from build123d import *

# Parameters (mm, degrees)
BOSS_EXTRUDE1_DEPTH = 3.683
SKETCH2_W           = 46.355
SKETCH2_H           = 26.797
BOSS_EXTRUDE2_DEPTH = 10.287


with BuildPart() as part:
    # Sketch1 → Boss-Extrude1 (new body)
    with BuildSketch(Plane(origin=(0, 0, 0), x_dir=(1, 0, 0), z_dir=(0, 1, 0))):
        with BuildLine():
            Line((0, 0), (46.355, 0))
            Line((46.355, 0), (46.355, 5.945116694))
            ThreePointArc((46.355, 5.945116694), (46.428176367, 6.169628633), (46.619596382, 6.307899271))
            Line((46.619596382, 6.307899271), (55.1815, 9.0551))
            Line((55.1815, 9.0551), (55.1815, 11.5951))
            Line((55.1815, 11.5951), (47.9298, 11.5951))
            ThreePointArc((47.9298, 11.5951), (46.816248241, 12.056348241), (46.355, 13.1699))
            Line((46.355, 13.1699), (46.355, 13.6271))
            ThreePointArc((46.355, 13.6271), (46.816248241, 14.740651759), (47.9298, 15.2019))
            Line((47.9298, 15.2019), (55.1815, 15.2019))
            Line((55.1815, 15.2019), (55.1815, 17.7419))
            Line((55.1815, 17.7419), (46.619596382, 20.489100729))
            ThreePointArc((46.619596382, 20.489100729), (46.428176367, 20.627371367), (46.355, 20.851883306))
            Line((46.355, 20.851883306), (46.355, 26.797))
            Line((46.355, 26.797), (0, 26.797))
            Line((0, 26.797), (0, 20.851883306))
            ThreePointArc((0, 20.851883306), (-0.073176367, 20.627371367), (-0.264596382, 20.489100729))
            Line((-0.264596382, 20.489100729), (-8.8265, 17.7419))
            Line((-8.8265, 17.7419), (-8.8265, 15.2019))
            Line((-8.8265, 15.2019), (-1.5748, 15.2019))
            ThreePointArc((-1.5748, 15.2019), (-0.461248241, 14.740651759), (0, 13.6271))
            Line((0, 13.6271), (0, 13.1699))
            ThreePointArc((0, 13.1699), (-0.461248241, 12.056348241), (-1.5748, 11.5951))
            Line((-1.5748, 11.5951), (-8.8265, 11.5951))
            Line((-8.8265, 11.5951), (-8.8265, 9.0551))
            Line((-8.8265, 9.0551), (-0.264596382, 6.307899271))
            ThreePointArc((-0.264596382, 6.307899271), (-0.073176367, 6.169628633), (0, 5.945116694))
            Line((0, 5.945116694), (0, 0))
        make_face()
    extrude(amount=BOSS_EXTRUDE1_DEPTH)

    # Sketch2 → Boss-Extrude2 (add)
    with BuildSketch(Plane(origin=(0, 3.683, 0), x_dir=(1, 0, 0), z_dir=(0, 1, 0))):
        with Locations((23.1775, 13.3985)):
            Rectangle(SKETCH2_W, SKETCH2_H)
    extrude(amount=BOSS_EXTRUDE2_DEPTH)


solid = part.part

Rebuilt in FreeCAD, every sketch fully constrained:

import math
import FreeCAD as App
import Part
import Sketcher
from FreeCAD import Vector
Q = App.Units.Quantity


def add_polygon(sketch, points):
    """Adds a closed chain of lines whose ends are joined by coincident constraints."""
    first, n = sketch.GeometryCount, len(points)
    for a, b in zip(points, points[1:] + points[:1]):
        sketch.addGeometry(Part.LineSegment(App.Vector(*a, 0), App.Vector(*b, 0)), False)
    for i in range(n):
        sketch.addConstraint(Sketcher.Constraint("Coincident", first + i, 2, first + (i + 1) % n, 1))

doc = App.newDocument("Part")
body = doc.addObject("PartDesign::Body", "Body")

# Sketch on XZ plane
sketch1 = doc.addObject("Sketcher::SketchObject", "Sketch")
body.addObject(sketch1)
sketch1.AttachmentSupport = (doc.XZ_Plane, [""])
sketch1.MapMode = "FlatFace"
sketch1.addGeometry([
    Part.LineSegment(Vector(0, 0, 0), Vector(46.355, 0, 0)),  # 0
    Part.LineSegment(Vector(46.355, 0, 0), Vector(46.355, -5.945117, 0)),  # 1
    Part.ArcOfCircle(Part.Circle(Vector(46.736, -5.945117, 0), Vector(0, 0, 1), 0.381), math.radians(-180), math.radians(-107.78953)),  # 2
    Part.LineSegment(Vector(46.619596, -6.307899, 0), Vector(55.1815, -9.0551, 0)),  # 3
    Part.LineSegment(Vector(55.1815, -9.0551, 0), Vector(55.1815, -11.5951, 0)),  # 4
    Part.LineSegment(Vector(55.1815, -11.5951, 0), Vector(47.9298, -11.5951, 0)),  # 5
    Part.ArcOfCircle(Part.Circle(Vector(47.9298, -13.1699, 0), Vector(0, 0, 1), 1.5748), math.radians(90), math.radians(180)),  # 6
    Part.LineSegment(Vector(46.355, -13.1699, 0), Vector(46.355, -13.6271, 0)),  # 7
    Part.ArcOfCircle(Part.Circle(Vector(47.9298, -13.6271, 0), Vector(0, 0, 1), 1.5748), math.radians(180), math.radians(270)),  # 8
    Part.LineSegment(Vector(47.9298, -15.2019, 0), Vector(55.1815, -15.2019, 0)),  # 9
    Part.LineSegment(Vector(55.1815, -15.2019, 0), Vector(55.1815, -17.7419, 0)),  # 10
    Part.LineSegment(Vector(55.1815, -17.7419, 0), Vector(46.619596, -20.489101, 0)),  # 11
    Part.ArcOfCircle(Part.Circle(Vector(46.736, -20.851883, 0), Vector(0, 0, 1), 0.381), math.radians(107.78953), math.radians(180)),  # 12
    Part.LineSegment(Vector(46.355, -20.851883, 0), Vector(46.355, -26.797, 0)),  # 13
    Part.LineSegment(Vector(46.355, -26.797, 0), Vector(0, -26.797, 0)),  # 14
    Part.LineSegment(Vector(0, -26.797, 0), Vector(0, -20.851883, 0)),  # 15
    Part.ArcOfCircle(Part.Circle(Vector(-0.381, -20.851883, 0), Vector(0, 0, 1), 0.381), math.radians(0), math.radians(72.21047)),  # 16
    Part.LineSegment(Vector(-0.264596, -20.489101, 0), Vector(-8.8265, -17.7419, 0)),  # 17
    Part.LineSegment(Vector(-8.8265, -17.7419, 0), Vector(-8.8265, -15.2019, 0)),  # 18
    Part.LineSegment(Vector(-8.8265, -15.2019, 0), Vector(-1.5748, -15.2019, 0)),  # 19
    Part.ArcOfCircle(Part.Circle(Vector(-1.5748, -13.6271, 0), Vector(0, 0, 1), 1.5748), math.radians(-90), math.radians(0)),  # 20
    Part.LineSegment(Vector(0, -13.6271, 0), Vector(0, -13.1699, 0)),  # 21
    Part.ArcOfCircle(Part.Circle(Vector(-1.5748, -13.1699, 0), Vector(0, 0, 1), 1.5748), math.radians(0), math.radians(90)),  # 22
    Part.LineSegment(Vector(-1.5748, -11.5951, 0), Vector(-8.8265, -11.5951, 0)),  # 23
    Part.LineSegment(Vector(-8.8265, -11.5951, 0), Vector(-8.8265, -9.0551, 0)),  # 24
    Part.LineSegment(Vector(-8.8265, -9.0551, 0), Vector(-0.264596, -6.307899, 0)),  # 25
    Part.ArcOfCircle(Part.Circle(Vector(-0.381, -5.945117, 0), Vector(0, 0, 1), 0.381), math.radians(-72.21047), math.radians(0)),  # 26
    Part.LineSegment(Vector(0, -5.945117, 0), Vector(0, 0, 0)),  # 27
], False)
sketch1.addConstraint([
    Sketcher.Constraint("Coincident", 0, 2, 1, 1),
    Sketcher.Constraint("Tangent", 1, 2, 2, 1),
    Sketcher.Constraint("Tangent", 2, 2, 3, 1),
    Sketcher.Constraint("Coincident", 3, 2, 4, 1),
    Sketcher.Constraint("Coincident", 4, 2, 5, 1),
    Sketcher.Constraint("Tangent", 5, 2, 6, 1),
    Sketcher.Constraint("Tangent", 6, 2, 7, 1),
    Sketcher.Constraint("Tangent", 7, 2, 8, 1),
    Sketcher.Constraint("Tangent", 8, 2, 9, 1),
    Sketcher.Constraint("Coincident", 9, 2, 10, 1),
    Sketcher.Constraint("Coincident", 10, 2, 11, 1),
    Sketcher.Constraint("Tangent", 11, 2, 12, 1),
    Sketcher.Constraint("Tangent", 12, 2, 13, 1),
    Sketcher.Constraint("Coincident", 13, 2, 14, 1),
    Sketcher.Constraint("Coincident", 14, 2, 15, 1),
    Sketcher.Constraint("Tangent", 15, 2, 16, 1),
    Sketcher.Constraint("Tangent", 16, 2, 17, 1),
    Sketcher.Constraint("Coincident", 17, 2, 18, 1),
    Sketcher.Constraint("Coincident", 18, 2, 19, 1),
    Sketcher.Constraint("Tangent", 19, 2, 20, 1),
    Sketcher.Constraint("Tangent", 20, 2, 21, 1),
    Sketcher.Constraint("Tangent", 21, 2, 22, 1),
    Sketcher.Constraint("Tangent", 22, 2, 23, 1),
    Sketcher.Constraint("Coincident", 23, 2, 24, 1),
    Sketcher.Constraint("Coincident", 24, 2, 25, 1),
    Sketcher.Constraint("Tangent", 25, 2, 26, 1),
    Sketcher.Constraint("Tangent", 26, 2, 27, 1),
    Sketcher.Constraint("Coincident", 27, 2, 0, 1),
    Sketcher.Constraint("Horizontal", 0),
    Sketcher.Constraint("Vertical", 1),
    Sketcher.Constraint("Vertical", 4),
    Sketcher.Constraint("Horizontal", 5),
    Sketcher.Constraint("Vertical", 7),
    Sketcher.Constraint("Horizontal", 9),
    Sketcher.Constraint("Vertical", 10),
    Sketcher.Constraint("Vertical", 13),
    Sketcher.Constraint("Horizontal", 14),
    Sketcher.Constraint("Vertical", 15),
    Sketcher.Constraint("Vertical", 18),
    Sketcher.Constraint("Horizontal", 19),
    Sketcher.Constraint("Vertical", 21),
    Sketcher.Constraint("Horizontal", 23),
    Sketcher.Constraint("Vertical", 24),
    Sketcher.Constraint("Vertical", 27),
    Sketcher.Constraint("Coincident", 27, 2, -1, 1),
    Sketcher.Constraint("Equal", 6, 8),
    Sketcher.Constraint("Equal", 2, 12),
    Sketcher.Constraint("Equal", 12, 16),
    Sketcher.Constraint("Equal", 8, 20),
    Sketcher.Constraint("Equal", 20, 22),
    Sketcher.Constraint("Equal", 16, 26),
    Sketcher.Constraint("PointOnObject", 14, 2, -2),
    Sketcher.Constraint("PointOnObject", 20, 2, -2),
    Sketcher.Constraint("Parallel", 3, 17),
    Sketcher.Constraint("Parallel", 11, 25),
    Sketcher.Constraint("Horizontal", 12, 3, 16, 3),
    Sketcher.Constraint("Horizontal", 8, 3, 20, 3),
    Sketcher.Constraint("Horizontal", 6, 3, 22, 3),
    Sketcher.Constraint("Horizontal", 2, 3, 26, 3),
    Sketcher.Constraint("Horizontal", 11, 2, 16, 2),
    Sketcher.Constraint("Horizontal", 10, 2, 17, 2),
    Sketcher.Constraint("Horizontal", 3, 2, 24, 2),
    Sketcher.Constraint("Vertical", 2, 3, 12, 3),
    Sketcher.Constraint("Vertical", 1, 2, 6, 2),
    Sketcher.Constraint("Vertical", 4, 2, 9, 2),
    Sketcher.Constraint("Equal", 4, 10),
    Sketcher.Constraint("Equal", 1, 13),
    Sketcher.Constraint("DistanceY", 4, 2, 4, 1, Q("0.1 in")),
    Sketcher.Constraint("Radius", 2, Q("0.015 in")),
    Sketcher.Constraint("Radius", 6, Q("0.062 in")),
    Sketcher.Constraint("DistanceX", 0, 1, 0, 2, Q("1.825 in")),
    Sketcher.Constraint("DistanceY", 7, 2, 7, 1, Q("0.018 in")),
    Sketcher.Constraint("DistanceX", 5, 2, 5, 1, Q("0.2855 in")),
    Sketcher.Constraint("DistanceY", 13, 2, -1, 1, Q("1.055 in")),
    Sketcher.Constraint("DistanceY", 2, 2, -1, 1, Q("6.307899 mm")),
])
pad1 = doc.addObject("PartDesign::Pad", "Pad")
body.addObject(pad1)
pad1.Profile = sketch1
pad1.Length = Q("0.145 in")
pad1.Reversed = True

# Sketch on XZ plane
sketch2 = doc.addObject("Sketcher::SketchObject", "Sketch001")
body.addObject(sketch2)
sketch2.AttachmentSupport = (doc.XZ_Plane, [""])
sketch2.MapMode = "FlatFace"
sketch2.AttachmentOffset = App.Placement(Vector(0, 0, -0.145 * 25.4), App.Rotation())
add_polygon(sketch2, [(0, -26.797), (0, 0), (46.355, 0), (46.355, -26.797)])  # lines 0-3
sketch2.addConstraint([
    Sketcher.Constraint("Vertical", 0),
    Sketcher.Constraint("Horizontal", 1),
    Sketcher.Constraint("Vertical", 2),
    Sketcher.Constraint("Horizontal", 3),
    Sketcher.Constraint("Coincident", 0, 2, -1, 1),
    Sketcher.Constraint("DistanceX", 1, 1, 1, 2, Q("1.825 in")),
    Sketcher.Constraint("DistanceY", 0, 1, 0, 2, Q("1.055 in")),
])
pad2 = doc.addObject("PartDesign::Pad", "Pad001")
body.addObject(pad2)
pad2.Profile = sketch2
pad2.Length = Q("0.405 in")
pad2.Reversed = True

doc.recompute()
